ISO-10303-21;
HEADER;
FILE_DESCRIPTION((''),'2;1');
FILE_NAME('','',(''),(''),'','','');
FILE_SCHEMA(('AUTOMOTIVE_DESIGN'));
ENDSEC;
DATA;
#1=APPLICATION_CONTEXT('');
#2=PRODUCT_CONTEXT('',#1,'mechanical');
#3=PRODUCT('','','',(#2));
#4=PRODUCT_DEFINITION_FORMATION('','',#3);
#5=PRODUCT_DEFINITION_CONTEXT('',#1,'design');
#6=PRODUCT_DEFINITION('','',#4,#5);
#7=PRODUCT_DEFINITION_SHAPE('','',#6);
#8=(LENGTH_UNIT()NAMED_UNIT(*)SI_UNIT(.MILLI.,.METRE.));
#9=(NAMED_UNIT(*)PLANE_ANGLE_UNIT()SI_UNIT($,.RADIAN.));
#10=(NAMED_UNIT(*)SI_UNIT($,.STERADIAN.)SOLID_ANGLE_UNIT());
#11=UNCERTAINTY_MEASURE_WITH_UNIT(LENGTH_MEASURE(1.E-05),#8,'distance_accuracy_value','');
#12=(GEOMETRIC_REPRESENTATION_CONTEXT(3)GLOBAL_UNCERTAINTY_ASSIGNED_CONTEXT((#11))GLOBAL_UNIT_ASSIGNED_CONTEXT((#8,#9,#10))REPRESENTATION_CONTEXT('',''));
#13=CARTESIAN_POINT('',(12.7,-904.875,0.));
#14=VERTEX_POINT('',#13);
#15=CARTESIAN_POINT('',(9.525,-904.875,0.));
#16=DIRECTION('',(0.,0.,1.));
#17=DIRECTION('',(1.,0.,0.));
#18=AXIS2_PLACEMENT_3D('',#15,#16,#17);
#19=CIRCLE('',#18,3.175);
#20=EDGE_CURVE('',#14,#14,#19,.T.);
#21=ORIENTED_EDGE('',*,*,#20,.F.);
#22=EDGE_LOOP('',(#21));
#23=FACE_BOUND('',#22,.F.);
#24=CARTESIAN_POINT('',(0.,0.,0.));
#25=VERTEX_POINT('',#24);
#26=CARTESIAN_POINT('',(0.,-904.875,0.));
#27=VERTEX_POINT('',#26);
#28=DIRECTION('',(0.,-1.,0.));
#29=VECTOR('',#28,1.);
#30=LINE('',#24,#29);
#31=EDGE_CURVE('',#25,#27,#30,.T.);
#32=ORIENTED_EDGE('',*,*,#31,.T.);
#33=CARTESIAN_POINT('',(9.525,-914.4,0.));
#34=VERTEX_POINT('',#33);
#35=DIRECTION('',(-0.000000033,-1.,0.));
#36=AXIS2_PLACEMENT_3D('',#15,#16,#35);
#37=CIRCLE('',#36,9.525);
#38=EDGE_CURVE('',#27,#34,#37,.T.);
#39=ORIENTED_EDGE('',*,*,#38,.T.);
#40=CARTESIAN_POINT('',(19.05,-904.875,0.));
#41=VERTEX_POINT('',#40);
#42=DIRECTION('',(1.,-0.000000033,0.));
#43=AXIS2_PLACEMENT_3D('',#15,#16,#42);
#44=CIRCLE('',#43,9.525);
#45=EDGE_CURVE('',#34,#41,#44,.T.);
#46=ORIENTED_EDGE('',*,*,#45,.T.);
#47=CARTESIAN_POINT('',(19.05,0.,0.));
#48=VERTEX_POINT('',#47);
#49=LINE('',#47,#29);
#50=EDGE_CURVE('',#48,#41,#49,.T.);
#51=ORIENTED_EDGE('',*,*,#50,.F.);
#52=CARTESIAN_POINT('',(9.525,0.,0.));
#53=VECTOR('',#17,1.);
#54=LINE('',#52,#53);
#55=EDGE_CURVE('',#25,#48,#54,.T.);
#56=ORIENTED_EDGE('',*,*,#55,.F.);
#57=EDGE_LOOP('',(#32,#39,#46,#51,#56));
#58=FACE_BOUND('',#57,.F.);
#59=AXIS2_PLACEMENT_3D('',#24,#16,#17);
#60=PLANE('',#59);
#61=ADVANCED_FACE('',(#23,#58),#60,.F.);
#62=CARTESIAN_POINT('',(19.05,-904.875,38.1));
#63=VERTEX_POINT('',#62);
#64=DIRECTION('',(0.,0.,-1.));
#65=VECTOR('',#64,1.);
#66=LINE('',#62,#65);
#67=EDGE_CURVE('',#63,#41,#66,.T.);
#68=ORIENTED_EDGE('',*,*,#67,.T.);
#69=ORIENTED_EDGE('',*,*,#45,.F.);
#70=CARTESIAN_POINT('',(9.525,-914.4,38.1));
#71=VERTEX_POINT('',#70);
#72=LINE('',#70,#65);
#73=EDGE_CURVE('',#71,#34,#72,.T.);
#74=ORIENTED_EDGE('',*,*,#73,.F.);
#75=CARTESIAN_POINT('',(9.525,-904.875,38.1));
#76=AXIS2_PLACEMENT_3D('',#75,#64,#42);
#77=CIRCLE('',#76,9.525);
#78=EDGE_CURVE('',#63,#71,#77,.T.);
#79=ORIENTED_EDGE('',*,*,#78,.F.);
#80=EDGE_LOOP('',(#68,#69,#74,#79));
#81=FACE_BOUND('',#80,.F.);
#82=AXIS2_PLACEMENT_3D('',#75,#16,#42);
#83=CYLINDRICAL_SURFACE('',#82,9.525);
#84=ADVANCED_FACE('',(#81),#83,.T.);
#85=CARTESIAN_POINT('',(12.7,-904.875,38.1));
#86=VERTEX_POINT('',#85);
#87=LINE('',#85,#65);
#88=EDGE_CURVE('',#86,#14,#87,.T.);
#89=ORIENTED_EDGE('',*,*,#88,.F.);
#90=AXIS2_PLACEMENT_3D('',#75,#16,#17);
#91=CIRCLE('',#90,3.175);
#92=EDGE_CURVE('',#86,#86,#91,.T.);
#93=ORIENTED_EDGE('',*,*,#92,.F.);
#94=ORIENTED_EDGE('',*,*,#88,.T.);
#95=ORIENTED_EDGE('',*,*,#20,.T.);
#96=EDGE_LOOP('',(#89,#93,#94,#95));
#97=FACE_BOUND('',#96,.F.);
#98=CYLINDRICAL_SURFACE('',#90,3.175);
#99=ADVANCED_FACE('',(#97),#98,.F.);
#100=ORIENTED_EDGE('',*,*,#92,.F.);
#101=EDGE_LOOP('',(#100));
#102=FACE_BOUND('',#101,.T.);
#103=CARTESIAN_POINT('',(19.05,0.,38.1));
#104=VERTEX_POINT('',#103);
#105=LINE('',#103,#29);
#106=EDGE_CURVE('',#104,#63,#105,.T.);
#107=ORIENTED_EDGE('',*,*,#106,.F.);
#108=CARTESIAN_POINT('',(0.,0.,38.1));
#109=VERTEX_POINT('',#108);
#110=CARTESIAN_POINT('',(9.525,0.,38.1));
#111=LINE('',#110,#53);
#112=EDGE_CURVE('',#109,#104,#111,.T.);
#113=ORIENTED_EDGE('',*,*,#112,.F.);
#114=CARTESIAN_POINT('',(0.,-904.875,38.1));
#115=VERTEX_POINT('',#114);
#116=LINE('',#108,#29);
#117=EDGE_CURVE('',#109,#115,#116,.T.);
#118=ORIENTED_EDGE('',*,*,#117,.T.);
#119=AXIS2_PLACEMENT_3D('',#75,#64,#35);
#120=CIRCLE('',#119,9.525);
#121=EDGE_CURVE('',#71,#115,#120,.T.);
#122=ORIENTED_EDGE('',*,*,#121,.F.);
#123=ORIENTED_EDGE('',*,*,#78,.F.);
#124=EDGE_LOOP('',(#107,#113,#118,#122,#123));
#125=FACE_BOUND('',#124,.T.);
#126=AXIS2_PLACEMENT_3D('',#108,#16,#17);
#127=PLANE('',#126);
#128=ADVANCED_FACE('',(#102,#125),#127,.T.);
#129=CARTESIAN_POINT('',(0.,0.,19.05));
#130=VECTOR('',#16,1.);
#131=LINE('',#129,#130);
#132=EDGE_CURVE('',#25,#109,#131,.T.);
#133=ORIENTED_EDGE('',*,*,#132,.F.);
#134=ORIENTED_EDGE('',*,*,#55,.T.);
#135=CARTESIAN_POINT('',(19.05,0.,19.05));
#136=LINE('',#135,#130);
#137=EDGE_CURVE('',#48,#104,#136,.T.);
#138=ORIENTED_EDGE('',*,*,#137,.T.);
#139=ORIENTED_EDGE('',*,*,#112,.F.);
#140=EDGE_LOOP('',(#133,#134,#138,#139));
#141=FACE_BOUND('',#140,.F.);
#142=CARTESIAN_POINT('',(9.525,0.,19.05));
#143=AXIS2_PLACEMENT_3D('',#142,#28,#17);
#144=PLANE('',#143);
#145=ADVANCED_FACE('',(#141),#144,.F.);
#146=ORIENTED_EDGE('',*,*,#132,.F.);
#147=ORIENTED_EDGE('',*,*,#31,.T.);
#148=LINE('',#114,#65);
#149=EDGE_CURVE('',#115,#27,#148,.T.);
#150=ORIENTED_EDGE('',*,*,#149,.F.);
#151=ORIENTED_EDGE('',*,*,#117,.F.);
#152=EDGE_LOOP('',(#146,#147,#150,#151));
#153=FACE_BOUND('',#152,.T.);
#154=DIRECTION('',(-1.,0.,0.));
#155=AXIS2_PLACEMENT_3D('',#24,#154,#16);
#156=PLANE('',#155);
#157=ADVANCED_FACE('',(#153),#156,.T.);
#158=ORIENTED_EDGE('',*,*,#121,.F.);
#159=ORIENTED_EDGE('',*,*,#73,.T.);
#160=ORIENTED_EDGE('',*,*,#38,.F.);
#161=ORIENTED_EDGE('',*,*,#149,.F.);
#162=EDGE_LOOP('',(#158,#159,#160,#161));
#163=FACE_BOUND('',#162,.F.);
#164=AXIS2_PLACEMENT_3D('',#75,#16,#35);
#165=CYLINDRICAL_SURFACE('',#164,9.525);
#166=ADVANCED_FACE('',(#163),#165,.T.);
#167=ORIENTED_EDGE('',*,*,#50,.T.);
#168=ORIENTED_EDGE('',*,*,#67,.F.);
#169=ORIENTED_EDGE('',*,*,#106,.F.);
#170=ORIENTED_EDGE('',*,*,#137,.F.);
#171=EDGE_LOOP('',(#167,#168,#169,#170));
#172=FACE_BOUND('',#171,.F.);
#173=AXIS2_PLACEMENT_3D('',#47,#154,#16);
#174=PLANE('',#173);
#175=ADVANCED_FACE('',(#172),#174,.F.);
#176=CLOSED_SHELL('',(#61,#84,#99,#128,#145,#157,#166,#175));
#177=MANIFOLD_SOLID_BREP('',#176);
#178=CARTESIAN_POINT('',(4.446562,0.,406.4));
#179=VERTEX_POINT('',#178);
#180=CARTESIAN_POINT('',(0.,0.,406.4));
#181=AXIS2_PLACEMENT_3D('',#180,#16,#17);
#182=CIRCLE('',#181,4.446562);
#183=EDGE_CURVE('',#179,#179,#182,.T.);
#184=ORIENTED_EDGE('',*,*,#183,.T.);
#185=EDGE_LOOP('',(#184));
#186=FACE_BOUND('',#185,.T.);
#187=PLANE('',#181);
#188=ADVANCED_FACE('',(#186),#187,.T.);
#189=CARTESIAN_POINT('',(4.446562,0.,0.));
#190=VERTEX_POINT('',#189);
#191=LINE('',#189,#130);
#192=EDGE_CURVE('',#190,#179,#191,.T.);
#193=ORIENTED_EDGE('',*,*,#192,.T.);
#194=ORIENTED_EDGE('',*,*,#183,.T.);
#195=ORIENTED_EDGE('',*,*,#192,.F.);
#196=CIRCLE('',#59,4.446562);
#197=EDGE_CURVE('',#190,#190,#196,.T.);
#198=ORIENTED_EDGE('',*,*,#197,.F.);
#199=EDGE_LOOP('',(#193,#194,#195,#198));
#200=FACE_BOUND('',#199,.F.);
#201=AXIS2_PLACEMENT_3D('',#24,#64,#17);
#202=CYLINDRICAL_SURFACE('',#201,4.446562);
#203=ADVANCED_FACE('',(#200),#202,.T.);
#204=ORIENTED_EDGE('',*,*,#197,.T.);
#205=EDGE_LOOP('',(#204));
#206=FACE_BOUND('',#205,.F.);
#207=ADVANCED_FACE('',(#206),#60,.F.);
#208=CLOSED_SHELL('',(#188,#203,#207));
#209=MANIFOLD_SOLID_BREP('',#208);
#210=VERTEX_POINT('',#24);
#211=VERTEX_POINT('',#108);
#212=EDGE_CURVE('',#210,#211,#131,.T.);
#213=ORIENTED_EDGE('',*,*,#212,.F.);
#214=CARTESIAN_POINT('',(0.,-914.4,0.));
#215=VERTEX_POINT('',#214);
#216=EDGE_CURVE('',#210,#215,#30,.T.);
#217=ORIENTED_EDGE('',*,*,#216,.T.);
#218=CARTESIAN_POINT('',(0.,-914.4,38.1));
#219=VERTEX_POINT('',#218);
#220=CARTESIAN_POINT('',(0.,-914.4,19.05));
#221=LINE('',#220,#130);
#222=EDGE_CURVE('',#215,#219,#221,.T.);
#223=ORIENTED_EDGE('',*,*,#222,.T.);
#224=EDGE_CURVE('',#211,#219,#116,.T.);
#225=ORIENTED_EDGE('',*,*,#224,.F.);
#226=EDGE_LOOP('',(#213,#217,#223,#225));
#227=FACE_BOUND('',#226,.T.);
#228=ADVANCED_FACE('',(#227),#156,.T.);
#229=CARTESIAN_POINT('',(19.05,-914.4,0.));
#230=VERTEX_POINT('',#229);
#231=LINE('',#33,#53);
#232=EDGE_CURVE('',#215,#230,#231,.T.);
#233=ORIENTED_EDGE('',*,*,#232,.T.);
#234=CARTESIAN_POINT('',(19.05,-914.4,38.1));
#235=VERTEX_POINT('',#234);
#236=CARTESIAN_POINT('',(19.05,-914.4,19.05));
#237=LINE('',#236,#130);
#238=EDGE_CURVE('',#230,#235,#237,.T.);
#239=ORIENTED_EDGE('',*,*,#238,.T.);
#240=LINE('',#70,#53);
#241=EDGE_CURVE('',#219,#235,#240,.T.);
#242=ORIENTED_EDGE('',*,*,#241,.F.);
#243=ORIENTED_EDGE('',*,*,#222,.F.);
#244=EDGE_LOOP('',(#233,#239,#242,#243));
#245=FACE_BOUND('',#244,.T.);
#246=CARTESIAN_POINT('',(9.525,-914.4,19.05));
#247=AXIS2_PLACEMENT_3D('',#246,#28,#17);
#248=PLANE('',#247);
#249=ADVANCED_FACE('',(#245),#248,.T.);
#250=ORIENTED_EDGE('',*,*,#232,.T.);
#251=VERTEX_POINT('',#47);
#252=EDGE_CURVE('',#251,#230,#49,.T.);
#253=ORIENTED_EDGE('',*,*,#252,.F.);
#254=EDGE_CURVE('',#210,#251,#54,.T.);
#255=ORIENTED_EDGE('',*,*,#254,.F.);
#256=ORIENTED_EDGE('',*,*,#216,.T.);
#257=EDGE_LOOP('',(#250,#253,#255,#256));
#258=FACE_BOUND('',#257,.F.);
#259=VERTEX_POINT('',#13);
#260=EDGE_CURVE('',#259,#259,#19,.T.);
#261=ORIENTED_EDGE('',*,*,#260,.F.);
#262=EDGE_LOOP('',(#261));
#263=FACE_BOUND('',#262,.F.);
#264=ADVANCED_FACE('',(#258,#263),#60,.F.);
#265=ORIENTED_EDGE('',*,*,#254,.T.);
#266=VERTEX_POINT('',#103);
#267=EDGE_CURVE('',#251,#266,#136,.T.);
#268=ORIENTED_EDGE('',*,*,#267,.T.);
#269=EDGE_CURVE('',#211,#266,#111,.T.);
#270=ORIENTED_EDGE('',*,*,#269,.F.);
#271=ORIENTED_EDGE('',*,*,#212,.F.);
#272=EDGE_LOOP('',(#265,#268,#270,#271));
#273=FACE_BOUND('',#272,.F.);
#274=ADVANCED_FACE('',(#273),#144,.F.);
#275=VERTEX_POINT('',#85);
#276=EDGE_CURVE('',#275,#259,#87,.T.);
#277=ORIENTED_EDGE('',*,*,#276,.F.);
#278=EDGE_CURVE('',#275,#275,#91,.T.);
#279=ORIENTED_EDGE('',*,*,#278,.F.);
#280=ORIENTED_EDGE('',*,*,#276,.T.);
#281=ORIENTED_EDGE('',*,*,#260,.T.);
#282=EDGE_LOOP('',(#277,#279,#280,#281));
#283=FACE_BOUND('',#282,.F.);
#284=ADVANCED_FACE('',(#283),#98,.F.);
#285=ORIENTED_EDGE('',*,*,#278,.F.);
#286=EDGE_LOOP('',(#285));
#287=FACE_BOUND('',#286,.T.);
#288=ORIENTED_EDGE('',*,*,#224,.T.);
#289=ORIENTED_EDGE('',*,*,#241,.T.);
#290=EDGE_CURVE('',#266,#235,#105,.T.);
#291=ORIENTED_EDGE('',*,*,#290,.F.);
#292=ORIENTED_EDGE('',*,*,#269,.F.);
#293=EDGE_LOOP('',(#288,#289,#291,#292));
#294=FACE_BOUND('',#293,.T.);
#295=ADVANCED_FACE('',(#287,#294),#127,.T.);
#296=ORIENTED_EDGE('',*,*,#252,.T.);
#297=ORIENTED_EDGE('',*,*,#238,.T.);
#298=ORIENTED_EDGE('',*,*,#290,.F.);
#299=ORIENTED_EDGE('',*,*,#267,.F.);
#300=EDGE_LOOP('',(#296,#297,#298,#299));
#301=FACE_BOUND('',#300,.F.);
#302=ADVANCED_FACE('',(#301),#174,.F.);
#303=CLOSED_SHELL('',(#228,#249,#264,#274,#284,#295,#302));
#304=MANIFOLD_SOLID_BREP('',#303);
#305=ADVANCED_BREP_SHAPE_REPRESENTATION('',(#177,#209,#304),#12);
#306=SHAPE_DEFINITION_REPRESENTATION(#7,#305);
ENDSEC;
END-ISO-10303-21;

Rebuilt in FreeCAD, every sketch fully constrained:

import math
import FreeCAD as App
import Part
import Sketcher

V = App.Vector
Q = App.Units.Quantity


def add_polygon(sketch, points):
    """Adds a closed chain of lines whose ends are joined by coincident constraints."""
    first, n = sketch.GeometryCount, len(points)
    for a, b in zip(points, points[1:] + points[:1]):
        sketch.addGeometry(Part.LineSegment(App.Vector(*a, 0), App.Vector(*b, 0)), False)
    for i in range(n):
        sketch.addConstraint(Sketcher.Constraint("Coincident", first + i, 2, first + (i + 1) % n, 1))

doc = App.newDocument("Part")
body = doc.addObject("PartDesign::Body", "Body")

sketch1 = doc.addObject("Sketcher::SketchObject", "Sketch")
body.addObject(sketch1)
sketch1.AttachmentSupport = (doc.XZ_Plane, [""])
sketch1.MapMode = "FlatFace"
add_polygon(sketch1, [(0, 38), (0, 0), (19, 0), (19, 38)])
sketch1.addConstraint(Sketcher.Constraint("Vertical", 0))
sketch1.addConstraint(Sketcher.Constraint("Horizontal", 1))
sketch1.addConstraint(Sketcher.Constraint("Vertical", 2))
sketch1.addConstraint(Sketcher.Constraint("Horizontal", 3))
sketch1.addConstraint(Sketcher.Constraint("Coincident", 0, 2, -1, 1))
sketch1.addConstraint(Sketcher.Constraint("DistanceY", 0, 2, 0, 1, Q("1.5 in")))
sketch1.addConstraint(Sketcher.Constraint("DistanceX", 1, 1, 1, 2, Q("0.75 in")))
pad1 = doc.addObject("PartDesign::Pad", "Pad")
body.addObject(pad1)
pad1.Profile = sketch1
pad1.Length = Q("36 in")

sketch2 = doc.addObject("Sketcher::SketchObject", "Sketch001")
body.addObject(sketch2)
sketch2.AttachmentSupport = (doc.XY_Plane, [""])
sketch2.MapMode = "FlatFace"
sketch2.AttachmentOffset = App.Placement(V(0, 0, 1.5 * 25.4), App.Rotation())
sketch2.addGeometry(Part.LineSegment(V(19.1, -914.4, 0), V(19.1, -904.9, 0)), False)
sketch2.addGeometry(Part.ArcOfCircle(Part.Circle(V(9.5, -904.9, 0), V(0, 0, 1), 9.5), math.radians(-90), math.radians(0)), False)
sketch2.addGeometry(Part.LineSegment(V(9.5, -914.4, 0), V(19.1, -914.4, 0)), False)
sketch2.addGeometry(Part.ArcOfCircle(Part.Circle(V(9.5, -904.9, 0), V(0, 0, 1), 9.5), math.radians(-180), math.radians(-90)), False)
sketch2.addGeometry(Part.LineSegment(V(0, -904.9, 0), V(0, -914.4, 0)), False)
sketch2.addGeometry(Part.LineSegment(V(0, -914.4, 0), V(9.5, -914.4, 0)), False)
sketch2.addGeometry(Part.Circle(V(9.5, -904.9, 0), V(0, 0, 1), 3.2), False)
sketch2.addConstraint(Sketcher.Constraint("Tangent", 0, 2, 1, 2))
sketch2.addConstraint(Sketcher.Constraint("Tangent", 1, 1, 2, 1))
sketch2.addConstraint(Sketcher.Constraint("Coincident", 2, 2, 0, 1))
sketch2.addConstraint(Sketcher.Constraint("Tangent", 3, 1, 4, 1))
sketch2.addConstraint(Sketcher.Constraint("Coincident", 4, 2, 5, 1))
sketch2.addConstraint(Sketcher.Constraint("Tangent", 5, 2, 3, 2))
sketch2.addConstraint(Sketcher.Constraint("Vertical", 0))
sketch2.addConstraint(Sketcher.Constraint("Horizontal", 2))
sketch2.addConstraint(Sketcher.Constraint("Vertical", 4))
sketch2.addConstraint(Sketcher.Constraint("Horizontal", 5))
sketch2.addConstraint(Sketcher.Constraint("Coincident", 3, 3, 1, 3))
sketch2.addConstraint(Sketcher.Constraint("Coincident", 6, 3, 1, 3))
sketch2.addConstraint(Sketcher.Constraint("Equal", 1, 3))
sketch2.addConstraint(Sketcher.Constraint("PointOnObject", 3, 1, -2))
sketch2.addConstraint(Sketcher.Constraint("Diameter", 6, Q("0.25 in")))
sketch2.addConstraint(Sketcher.Constraint("DistanceY", 1, 1, -1, 1, Q("36 in")))
sketch2.addConstraint(Sketcher.Constraint("Radius", 1, Q("0.375 in")))
pocket1 = doc.addObject("PartDesign::Pocket", "Pocket")
body.addObject(pocket1)
pocket1.Profile = sketch2
pocket1.Type = "ThroughAll"
body2 = doc.addObject("PartDesign::Body", "Body001")

sketch3 = doc.addObject("Sketcher::SketchObject", "Sketch002")
body2.addObject(sketch3)
sketch3.AttachmentSupport = (doc.getObject("XY_Plane001"), [""])
sketch3.MapMode = "FlatFace"
sketch3.addGeometry(Part.Circle(V(0, 0, 0), V(0, 0, 1), 4.4), False)
sketch3.addConstraint(Sketcher.Constraint("Coincident", 0, 3, -1, 1))
sketch3.addConstraint(Sketcher.Constraint("Diameter", 0, 8.893124))
pad2 = doc.addObject("PartDesign::Pad", "Pad001")
body2.addObject(pad2)
pad2.Profile = sketch3
pad2.Length = Q("16 in")
body3 = doc.addObject("PartDesign::Body", "Body002")

sketch4 = doc.addObject("Sketcher::SketchObject", "Sketch003")
body3.addObject(sketch4)
sketch4.AttachmentSupport = (doc.getObject("XZ_Plane002"), [""])
sketch4.MapMode = "FlatFace"
add_polygon(sketch4, [(0, 38), (0, 0), (19, 0), (19, 38)])
sketch4.addConstraint(Sketcher.Constraint("Vertical", 0))
sketch4.addConstraint(Sketcher.Constraint("Horizontal", 1))
sketch4.addConstraint(Sketcher.Constraint("Vertical", 2))
sketch4.addConstraint(Sketcher.Constraint("Horizontal", 3))
sketch4.addConstraint(Sketcher.Constraint("Coincident", 0, 2, -1, 1))
sketch4.addConstraint(Sketcher.Constraint("DistanceY", 0, 2, 0, 1, Q("1.5 in")))
sketch4.addConstraint(Sketcher.Constraint("DistanceX", 1, 1, 1, 2, Q("0.75 in")))
pad3 = doc.addObject("PartDesign::Pad", "Pad002")
body3.addObject(pad3)
pad3.Profile = sketch4
pad3.Length = Q("36 in")

sketch5 = doc.addObject("Sketcher::SketchObject", "Sketch004")
body3.addObject(sketch5)
sketch5.AttachmentSupport = (doc.getObject("XY_Plane002"), [""])
sketch5.MapMode = "FlatFace"
sketch5.AttachmentOffset = App.Placement(V(0, 0, 1.5 * 25.4), App.Rotation())
sketch5.addGeometry(Part.Circle(V(9.5, -904.9, 0), V(0, 0, 1), 3.2), False)
sketch5.addConstraint(Sketcher.Constraint("Diameter", 0, Q("0.25 in")))
sketch5.addConstraint(Sketcher.Constraint("DistanceX", -1, 1, 0, 3, Q("0.375 in")))
sketch5.addConstraint(Sketcher.Constraint("DistanceY", 0, 3, -1, 1, Q("35.625 in")))
pocket2 = doc.addObject("PartDesign::Pocket", "Pocket001")
body3.addObject(pocket2)
pocket2.Profile = sketch5
pocket2.Type = "ThroughAll"

doc.recompute()
